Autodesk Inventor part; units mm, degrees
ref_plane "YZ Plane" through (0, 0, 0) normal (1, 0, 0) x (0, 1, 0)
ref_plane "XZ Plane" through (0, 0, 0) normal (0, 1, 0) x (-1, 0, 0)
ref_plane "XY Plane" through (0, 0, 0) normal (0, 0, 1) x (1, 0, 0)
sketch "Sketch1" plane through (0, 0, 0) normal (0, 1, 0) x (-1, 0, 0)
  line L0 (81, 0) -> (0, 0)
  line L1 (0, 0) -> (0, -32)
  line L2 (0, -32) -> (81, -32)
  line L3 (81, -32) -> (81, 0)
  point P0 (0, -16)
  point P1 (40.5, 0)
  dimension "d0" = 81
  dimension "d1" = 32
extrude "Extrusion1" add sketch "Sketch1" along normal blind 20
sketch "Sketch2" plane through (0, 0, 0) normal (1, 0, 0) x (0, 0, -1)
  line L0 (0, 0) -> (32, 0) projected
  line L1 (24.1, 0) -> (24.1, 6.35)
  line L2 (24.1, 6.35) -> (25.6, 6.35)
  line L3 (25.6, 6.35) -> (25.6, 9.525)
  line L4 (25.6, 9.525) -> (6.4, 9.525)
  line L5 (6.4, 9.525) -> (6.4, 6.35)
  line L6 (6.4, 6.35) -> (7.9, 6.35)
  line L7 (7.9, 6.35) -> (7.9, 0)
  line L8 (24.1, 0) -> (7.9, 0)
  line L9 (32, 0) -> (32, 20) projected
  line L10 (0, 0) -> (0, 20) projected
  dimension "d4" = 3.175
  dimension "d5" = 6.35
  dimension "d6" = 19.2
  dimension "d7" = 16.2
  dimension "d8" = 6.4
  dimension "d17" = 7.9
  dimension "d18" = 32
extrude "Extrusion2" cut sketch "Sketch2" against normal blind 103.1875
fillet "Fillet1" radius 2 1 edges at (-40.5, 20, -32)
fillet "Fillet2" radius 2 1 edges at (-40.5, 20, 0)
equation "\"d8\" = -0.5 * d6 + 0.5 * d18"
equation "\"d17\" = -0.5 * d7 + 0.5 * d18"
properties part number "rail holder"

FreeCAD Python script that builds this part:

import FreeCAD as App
import Part
import Sketcher


def edges_at(feature, points):
    """Names of the edges that pass closest to the given points."""
    edges = feature.Shape.Edges
    near = lambda p: min(range(len(edges)), key=lambda i: edges[i].distToShape(Part.Vertex(*p))[0])
    return sorted({f"Edge{near(p) + 1}" for p in points})


def add_polygon(sketch, points):
    """Adds a closed chain of lines whose ends are joined by coincident constraints."""
    first, n = sketch.GeometryCount, len(points)
    for a, b in zip(points, points[1:] + points[:1]):
        sketch.addGeometry(Part.LineSegment(App.Vector(*a, 0), App.Vector(*b, 0)), False)
    for i in range(n):
        sketch.addConstraint(Sketcher.Constraint("Coincident", first + i, 2, first + (i + 1) % n, 1))

doc = App.newDocument("Part")
body = doc.addObject("PartDesign::Body", "Body")

sketch1 = doc.addObject("Sketcher::SketchObject", "Sketch")
body.addObject(sketch1)
sketch1.AttachmentSupport = (doc.XZ_Plane, [""])
sketch1.MapMode = "FlatFace"
add_polygon(sketch1, [(-81, -32), (-81, 0), (0, 0), (0, -32)])
sketch1.addConstraint([
    Sketcher.Constraint("Vertical", 0),
    Sketcher.Constraint("Horizontal", 1),
    Sketcher.Constraint("Vertical", 2),
    Sketcher.Constraint("Horizontal", 3),
    Sketcher.Constraint("Coincident", 1, 2, -1, 1),
    Sketcher.Constraint("DistanceX", 1, 1, 1, 2, 81.0),
    Sketcher.Constraint("DistanceY", 0, 1, 0, 2, 32.0),
])
pad1 = doc.addObject("PartDesign::Pad", "Pad")
body.addObject(pad1)
pad1.Profile = sketch1
pad1.Length = 20
pad1.Reversed = True

sketch2 = doc.addObject("Sketcher::SketchObject", "Sketch001")
body.addObject(sketch2)
sketch2.AttachmentSupport = (doc.YZ_Plane, [""])
sketch2.MapMode = "FlatFace"
add_polygon(sketch2, [(6.3, -7.9), (0, -7.9), (0, -24.1), (6.3, -24.1), (6.3, -25.6), (9.5, -25.6), (9.5, -6.4), (6.3, -6.4)])
sketch2.addConstraint([
    Sketcher.Constraint("Horizontal", 0),
    Sketcher.Constraint("Vertical", 1),
    Sketcher.Constraint("Horizontal", 2),
    Sketcher.Constraint("Vertical", 3),
    Sketcher.Constraint("Horizontal", 4),
    Sketcher.Constraint("Vertical", 5),
    Sketcher.Constraint("Horizontal", 6),
    Sketcher.Constraint("Vertical", 7),
    Sketcher.Constraint("PointOnObject", 0, 2, -2),
    Sketcher.Constraint("Vertical", 3, 2, 6, 2),
    Sketcher.Constraint("Equal", 3, 7),
    Sketcher.Constraint("DistanceY", 1, 2, 1, 1, 16.2),
    Sketcher.Constraint("DistanceY", 5, 1, 5, 2, 19.2),
    Sketcher.Constraint("DistanceX", 0, 2, 0, 1, 6.35),
    Sketcher.Constraint("DistanceY", 0, 2, -1, 1, 7.9),
    Sketcher.Constraint("DistanceX", 4, 1, 4, 2, 3.175),
])
pocket1 = doc.addObject("PartDesign::Pocket", "Pocket")
body.addObject(pocket1)
pocket1.Profile = sketch2
pocket1.Length = 103.1875
doc.recompute()

fillet = doc.addObject("PartDesign::Fillet", "Fillet")
body.addObject(fillet)
fillet.Base = (pocket1, edges_at(pocket1, [(-40.5, 20, -32)]))
fillet.Radius = 2
doc.recompute()

fillet2 = doc.addObject("PartDesign::Fillet", "Fillet001")
body.addObject(fillet2)
fillet2.Base = (fillet, edges_at(fillet, [(-40.5, 20, 0)]))
fillet2.Radius = 2

doc.recompute()
